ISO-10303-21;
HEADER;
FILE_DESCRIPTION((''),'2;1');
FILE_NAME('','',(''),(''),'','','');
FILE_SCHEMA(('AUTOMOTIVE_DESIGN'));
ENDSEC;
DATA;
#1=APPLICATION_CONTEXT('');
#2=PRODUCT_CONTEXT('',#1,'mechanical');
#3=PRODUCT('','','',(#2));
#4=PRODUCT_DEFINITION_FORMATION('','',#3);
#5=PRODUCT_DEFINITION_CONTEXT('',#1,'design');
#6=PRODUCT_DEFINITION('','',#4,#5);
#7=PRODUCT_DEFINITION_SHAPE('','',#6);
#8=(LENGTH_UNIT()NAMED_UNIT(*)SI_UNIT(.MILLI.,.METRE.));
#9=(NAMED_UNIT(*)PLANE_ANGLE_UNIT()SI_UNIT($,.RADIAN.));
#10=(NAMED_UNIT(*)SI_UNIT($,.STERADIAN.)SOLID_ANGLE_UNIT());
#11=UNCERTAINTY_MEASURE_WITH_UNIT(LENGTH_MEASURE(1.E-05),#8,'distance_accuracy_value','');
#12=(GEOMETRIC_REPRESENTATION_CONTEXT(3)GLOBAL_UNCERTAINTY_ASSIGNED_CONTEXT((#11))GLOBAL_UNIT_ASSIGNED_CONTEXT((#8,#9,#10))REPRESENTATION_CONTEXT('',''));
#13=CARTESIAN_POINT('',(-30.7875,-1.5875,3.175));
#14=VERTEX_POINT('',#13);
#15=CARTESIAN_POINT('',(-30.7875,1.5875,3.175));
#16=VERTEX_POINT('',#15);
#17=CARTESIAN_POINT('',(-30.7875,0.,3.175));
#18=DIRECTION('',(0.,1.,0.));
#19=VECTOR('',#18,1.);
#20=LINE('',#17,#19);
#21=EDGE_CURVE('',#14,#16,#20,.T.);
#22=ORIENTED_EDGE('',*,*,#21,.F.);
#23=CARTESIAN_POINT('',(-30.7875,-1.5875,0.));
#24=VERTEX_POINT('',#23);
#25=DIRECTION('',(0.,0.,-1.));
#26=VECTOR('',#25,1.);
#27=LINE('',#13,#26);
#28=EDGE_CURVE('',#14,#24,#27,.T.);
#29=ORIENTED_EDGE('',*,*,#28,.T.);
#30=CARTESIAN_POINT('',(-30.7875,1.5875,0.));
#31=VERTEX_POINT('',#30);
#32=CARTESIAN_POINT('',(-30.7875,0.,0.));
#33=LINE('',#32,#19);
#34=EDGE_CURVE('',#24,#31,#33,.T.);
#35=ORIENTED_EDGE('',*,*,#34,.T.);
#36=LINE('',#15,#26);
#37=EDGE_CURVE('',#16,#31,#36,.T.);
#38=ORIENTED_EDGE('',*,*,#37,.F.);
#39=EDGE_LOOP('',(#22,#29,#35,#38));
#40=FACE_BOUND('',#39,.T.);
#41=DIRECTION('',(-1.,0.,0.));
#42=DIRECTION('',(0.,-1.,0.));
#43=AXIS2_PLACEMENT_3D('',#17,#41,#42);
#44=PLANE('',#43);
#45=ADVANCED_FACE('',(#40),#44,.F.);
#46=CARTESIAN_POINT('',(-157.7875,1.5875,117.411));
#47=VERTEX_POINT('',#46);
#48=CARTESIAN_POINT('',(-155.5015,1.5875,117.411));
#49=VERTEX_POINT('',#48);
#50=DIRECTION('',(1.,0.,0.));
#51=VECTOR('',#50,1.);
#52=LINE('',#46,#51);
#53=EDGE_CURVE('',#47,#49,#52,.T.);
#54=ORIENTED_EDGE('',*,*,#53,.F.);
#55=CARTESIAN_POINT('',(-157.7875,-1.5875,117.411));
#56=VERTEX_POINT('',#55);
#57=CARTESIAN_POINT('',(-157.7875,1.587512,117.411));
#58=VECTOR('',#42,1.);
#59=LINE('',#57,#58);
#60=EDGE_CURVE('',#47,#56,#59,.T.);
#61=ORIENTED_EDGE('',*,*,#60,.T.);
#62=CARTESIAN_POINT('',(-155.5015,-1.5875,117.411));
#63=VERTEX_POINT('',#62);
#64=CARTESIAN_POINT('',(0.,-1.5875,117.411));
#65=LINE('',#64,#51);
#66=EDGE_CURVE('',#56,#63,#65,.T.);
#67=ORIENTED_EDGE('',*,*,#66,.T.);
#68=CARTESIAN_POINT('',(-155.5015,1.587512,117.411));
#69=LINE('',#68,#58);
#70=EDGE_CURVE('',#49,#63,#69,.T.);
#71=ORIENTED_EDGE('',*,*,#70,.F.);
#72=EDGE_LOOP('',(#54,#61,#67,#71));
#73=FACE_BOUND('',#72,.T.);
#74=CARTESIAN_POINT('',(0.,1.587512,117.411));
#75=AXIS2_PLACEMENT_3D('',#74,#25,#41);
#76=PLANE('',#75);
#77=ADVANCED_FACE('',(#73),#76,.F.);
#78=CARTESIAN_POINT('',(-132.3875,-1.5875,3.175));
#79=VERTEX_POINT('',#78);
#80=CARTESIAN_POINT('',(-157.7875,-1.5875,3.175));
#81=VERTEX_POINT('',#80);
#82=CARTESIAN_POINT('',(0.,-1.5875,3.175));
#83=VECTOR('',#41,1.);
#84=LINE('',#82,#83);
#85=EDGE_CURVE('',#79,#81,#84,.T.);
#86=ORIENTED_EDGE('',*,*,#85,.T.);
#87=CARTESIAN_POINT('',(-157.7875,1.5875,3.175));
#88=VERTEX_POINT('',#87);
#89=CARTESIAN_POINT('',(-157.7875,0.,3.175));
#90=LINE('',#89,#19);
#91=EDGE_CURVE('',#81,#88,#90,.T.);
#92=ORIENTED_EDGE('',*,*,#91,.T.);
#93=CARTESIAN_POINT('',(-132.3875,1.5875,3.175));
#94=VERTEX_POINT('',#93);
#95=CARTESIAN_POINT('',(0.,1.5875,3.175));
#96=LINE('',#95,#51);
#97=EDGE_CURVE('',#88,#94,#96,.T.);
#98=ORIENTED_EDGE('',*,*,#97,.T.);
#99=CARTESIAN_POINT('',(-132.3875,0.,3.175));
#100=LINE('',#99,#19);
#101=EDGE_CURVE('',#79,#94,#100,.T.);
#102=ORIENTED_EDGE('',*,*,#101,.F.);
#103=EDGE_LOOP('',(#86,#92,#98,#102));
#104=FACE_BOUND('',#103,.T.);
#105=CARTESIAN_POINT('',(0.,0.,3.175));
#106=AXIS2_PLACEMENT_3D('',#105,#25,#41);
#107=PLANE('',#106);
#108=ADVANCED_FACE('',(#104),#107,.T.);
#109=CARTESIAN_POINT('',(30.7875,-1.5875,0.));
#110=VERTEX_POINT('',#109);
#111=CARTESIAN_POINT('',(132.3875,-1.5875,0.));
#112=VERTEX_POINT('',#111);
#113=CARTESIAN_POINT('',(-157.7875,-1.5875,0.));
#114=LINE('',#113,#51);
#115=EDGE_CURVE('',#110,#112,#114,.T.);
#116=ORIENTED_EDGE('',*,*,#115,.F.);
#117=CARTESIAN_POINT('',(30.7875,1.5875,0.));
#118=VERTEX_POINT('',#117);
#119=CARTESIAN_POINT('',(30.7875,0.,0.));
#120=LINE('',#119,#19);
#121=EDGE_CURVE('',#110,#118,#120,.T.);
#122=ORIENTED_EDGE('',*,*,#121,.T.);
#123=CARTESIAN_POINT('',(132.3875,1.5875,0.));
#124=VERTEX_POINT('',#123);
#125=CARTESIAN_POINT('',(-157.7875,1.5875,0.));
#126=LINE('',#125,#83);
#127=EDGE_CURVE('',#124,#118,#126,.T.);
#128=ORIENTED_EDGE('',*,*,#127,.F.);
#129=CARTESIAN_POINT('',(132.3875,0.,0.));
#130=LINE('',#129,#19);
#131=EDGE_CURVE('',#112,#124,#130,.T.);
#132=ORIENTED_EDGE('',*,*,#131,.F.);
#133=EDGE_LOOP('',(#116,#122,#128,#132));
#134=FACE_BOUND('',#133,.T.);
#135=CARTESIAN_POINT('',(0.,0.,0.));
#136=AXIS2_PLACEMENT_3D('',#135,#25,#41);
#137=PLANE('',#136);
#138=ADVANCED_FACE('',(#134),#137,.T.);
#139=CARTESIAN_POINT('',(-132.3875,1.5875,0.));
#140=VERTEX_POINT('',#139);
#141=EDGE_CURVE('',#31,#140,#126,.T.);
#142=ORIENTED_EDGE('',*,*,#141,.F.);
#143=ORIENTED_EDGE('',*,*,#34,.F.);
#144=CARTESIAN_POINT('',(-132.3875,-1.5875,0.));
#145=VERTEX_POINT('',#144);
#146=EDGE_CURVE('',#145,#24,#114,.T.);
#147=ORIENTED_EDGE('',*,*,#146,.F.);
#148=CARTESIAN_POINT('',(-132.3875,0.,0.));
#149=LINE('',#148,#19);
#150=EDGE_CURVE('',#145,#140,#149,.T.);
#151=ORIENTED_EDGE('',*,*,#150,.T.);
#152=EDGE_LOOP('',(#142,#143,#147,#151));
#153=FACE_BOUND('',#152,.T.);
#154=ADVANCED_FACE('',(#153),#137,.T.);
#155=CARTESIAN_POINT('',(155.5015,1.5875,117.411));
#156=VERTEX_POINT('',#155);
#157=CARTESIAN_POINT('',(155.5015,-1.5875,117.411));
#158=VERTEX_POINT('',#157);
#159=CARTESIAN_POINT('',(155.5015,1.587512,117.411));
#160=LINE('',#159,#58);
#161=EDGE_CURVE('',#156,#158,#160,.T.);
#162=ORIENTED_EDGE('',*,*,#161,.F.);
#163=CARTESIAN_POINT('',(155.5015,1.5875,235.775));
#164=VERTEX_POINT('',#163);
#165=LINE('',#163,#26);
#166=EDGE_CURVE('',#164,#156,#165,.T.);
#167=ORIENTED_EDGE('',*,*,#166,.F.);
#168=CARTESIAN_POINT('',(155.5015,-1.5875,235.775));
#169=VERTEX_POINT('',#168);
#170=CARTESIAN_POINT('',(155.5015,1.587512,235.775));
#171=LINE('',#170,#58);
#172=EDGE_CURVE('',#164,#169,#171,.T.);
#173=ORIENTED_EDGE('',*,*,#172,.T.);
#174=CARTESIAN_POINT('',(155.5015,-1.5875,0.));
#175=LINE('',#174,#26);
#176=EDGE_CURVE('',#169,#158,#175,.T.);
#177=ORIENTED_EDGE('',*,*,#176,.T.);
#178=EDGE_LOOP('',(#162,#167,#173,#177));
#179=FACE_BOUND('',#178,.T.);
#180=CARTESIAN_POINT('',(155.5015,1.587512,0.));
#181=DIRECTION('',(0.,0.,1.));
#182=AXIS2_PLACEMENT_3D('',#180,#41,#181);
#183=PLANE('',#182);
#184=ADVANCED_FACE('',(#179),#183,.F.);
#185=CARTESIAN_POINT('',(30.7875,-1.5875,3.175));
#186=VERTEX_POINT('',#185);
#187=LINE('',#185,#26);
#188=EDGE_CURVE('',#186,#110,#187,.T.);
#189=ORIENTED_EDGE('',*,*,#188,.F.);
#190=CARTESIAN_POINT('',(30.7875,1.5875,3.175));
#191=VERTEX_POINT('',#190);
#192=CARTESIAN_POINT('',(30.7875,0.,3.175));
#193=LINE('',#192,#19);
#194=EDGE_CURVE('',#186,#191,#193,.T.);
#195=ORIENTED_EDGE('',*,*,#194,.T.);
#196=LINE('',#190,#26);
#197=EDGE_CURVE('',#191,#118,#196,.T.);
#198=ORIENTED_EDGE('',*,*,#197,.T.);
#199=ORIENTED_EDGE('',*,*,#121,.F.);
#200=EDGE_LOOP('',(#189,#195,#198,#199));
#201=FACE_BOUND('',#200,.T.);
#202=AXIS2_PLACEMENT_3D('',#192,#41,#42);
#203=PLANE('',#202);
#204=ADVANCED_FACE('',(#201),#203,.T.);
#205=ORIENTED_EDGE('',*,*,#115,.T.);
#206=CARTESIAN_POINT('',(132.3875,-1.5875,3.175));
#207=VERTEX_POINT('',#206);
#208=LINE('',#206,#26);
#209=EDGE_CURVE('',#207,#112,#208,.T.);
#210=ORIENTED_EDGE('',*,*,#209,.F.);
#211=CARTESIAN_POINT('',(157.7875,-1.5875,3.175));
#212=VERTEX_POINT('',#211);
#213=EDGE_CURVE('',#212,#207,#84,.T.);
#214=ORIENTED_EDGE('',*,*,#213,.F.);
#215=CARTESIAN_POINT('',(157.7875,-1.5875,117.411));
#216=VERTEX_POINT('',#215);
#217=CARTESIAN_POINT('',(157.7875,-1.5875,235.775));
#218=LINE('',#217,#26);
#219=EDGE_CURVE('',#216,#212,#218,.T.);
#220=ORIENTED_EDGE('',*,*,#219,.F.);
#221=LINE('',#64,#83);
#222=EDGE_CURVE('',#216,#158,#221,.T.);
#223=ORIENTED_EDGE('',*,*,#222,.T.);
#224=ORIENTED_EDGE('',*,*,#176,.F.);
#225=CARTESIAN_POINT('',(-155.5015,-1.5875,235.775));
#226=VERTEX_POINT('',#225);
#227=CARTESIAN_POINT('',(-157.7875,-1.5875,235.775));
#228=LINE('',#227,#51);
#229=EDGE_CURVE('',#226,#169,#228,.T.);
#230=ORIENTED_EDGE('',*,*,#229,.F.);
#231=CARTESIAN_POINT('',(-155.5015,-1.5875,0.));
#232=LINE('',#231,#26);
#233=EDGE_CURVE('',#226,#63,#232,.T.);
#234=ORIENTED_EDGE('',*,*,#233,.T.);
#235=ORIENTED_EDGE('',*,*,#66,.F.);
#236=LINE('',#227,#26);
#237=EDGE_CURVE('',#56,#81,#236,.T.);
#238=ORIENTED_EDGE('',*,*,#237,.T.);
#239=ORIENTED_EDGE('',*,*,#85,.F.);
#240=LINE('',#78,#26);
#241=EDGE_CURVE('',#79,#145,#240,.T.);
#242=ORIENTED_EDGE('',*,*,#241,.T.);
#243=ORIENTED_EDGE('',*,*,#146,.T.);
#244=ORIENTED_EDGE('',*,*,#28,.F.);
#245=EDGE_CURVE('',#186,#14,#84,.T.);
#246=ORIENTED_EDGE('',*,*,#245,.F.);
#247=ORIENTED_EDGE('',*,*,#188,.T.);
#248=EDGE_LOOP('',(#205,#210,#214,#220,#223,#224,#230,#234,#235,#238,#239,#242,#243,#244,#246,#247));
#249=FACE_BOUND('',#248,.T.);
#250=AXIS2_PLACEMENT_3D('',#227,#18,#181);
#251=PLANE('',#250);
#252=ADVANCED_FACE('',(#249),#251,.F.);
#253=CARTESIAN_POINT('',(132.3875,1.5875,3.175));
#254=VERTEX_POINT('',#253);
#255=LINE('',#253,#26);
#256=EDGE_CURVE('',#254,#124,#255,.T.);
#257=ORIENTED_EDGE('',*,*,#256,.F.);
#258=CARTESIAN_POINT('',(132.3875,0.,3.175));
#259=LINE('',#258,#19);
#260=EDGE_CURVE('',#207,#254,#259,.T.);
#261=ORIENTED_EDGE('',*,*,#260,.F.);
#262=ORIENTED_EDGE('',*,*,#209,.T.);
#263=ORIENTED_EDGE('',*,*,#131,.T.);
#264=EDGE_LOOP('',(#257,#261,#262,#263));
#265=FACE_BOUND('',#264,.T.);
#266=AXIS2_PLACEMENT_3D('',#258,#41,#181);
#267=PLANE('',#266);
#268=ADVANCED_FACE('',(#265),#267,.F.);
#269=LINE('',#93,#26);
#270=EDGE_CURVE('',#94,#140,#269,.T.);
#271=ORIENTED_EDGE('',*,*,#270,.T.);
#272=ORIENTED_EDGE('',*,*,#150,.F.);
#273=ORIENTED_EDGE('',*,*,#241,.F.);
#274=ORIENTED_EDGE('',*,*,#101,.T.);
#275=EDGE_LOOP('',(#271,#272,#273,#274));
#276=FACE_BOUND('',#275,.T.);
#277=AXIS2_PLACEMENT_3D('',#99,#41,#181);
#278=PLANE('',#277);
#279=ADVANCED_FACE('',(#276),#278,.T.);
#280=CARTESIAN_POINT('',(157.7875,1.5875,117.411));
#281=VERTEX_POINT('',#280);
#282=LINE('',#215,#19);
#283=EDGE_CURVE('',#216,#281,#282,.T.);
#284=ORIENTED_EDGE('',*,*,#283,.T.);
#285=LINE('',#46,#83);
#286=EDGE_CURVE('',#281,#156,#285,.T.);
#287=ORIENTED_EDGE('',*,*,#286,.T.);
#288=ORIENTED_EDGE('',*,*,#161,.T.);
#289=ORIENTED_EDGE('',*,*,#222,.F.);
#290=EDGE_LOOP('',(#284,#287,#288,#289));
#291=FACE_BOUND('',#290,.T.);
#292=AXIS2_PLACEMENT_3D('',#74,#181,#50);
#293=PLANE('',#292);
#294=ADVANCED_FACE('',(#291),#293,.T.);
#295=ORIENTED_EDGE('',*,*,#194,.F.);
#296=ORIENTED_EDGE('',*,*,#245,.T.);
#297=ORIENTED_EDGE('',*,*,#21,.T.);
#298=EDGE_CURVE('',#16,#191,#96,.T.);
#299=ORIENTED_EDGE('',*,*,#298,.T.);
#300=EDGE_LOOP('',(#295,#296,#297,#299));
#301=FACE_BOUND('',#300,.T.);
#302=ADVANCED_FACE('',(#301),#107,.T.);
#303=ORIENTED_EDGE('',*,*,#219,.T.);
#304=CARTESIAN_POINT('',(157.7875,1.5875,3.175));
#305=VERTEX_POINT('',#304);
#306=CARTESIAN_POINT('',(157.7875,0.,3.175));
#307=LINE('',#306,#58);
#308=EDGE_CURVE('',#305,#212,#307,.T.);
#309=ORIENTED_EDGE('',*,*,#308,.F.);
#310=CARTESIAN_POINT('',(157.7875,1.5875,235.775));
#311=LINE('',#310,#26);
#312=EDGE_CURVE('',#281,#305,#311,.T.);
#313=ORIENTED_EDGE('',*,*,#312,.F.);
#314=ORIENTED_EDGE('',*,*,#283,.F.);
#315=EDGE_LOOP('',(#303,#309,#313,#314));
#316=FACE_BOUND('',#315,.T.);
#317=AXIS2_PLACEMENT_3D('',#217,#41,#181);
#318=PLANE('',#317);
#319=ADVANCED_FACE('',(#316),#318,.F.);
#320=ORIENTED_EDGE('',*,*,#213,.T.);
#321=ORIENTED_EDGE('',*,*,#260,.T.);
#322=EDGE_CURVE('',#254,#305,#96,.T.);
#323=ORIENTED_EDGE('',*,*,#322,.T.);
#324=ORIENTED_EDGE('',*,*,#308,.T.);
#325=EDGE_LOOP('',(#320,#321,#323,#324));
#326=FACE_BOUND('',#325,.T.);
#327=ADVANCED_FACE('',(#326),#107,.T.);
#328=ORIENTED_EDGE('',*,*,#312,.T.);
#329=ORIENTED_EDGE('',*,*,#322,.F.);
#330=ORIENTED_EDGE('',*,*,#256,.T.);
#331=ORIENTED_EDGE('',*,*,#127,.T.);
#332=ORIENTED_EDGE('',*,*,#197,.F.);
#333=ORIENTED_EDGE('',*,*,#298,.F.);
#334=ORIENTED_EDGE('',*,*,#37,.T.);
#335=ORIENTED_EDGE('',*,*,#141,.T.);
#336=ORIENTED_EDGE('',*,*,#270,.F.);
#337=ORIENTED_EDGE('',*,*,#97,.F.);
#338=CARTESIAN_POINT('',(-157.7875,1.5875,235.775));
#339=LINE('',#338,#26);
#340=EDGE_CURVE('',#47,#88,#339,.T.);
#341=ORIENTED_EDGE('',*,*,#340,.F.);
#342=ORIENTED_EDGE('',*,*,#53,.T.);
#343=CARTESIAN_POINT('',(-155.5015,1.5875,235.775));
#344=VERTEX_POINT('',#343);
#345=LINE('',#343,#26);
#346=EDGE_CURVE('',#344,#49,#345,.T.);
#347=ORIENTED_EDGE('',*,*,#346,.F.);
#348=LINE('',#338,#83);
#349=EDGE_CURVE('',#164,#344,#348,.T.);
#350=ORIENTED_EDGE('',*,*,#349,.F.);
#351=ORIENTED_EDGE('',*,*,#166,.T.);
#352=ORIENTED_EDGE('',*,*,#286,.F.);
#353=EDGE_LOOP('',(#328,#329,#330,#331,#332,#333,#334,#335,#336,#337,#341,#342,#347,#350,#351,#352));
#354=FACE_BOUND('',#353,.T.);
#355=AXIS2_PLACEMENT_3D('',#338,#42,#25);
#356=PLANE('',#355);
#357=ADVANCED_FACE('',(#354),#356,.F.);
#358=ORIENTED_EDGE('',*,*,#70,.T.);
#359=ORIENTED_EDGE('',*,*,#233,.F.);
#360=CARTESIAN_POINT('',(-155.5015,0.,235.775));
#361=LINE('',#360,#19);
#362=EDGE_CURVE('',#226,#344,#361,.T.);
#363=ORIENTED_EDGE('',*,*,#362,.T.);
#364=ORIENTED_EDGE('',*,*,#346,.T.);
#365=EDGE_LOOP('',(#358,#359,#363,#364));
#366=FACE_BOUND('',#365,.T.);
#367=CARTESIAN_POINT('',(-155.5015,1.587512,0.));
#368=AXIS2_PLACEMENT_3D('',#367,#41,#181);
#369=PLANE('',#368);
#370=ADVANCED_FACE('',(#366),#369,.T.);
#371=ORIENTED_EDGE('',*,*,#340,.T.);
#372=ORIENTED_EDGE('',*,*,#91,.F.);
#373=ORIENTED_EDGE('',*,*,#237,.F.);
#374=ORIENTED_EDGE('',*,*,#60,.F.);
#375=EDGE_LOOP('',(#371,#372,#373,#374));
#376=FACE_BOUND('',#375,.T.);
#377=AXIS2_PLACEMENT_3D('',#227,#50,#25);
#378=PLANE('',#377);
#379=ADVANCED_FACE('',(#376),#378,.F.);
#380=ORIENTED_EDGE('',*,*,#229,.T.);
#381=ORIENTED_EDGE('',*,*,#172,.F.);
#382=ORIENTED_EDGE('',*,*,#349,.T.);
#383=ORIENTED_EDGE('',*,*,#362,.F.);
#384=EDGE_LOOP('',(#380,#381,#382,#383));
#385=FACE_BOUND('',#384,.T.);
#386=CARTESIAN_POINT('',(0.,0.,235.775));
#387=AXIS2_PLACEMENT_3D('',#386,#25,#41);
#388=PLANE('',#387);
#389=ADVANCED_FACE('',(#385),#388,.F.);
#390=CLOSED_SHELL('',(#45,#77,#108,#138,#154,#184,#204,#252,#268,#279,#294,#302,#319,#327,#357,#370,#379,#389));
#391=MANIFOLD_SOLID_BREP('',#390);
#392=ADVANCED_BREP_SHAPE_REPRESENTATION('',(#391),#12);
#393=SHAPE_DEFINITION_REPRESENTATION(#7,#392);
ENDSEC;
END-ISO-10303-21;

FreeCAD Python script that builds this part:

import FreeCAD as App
import Part
import Sketcher

V = App.Vector
Q = App.Units.Quantity

doc = App.newDocument("Part")
body = doc.addObject("PartDesign::Body", "Body")

# Sketch on XY plane
sketch1 = body.newObject("Sketcher::SketchObject", "Sketch")
sketch1.AttachmentSupport = (doc.getObject("XY_Plane"), [""])
sketch1.MapMode = "FlatFace"
sketch1.addGeometry([
    Part.LineSegment(V(-157.8, 1.6, 0), V(-157.8, -1.6, 0)),
    Part.LineSegment(V(-157.8, -1.6, 0), V(157.8, -1.6, 0)),
    Part.LineSegment(V(157.8, -1.6, 0), V(157.8, 1.6, 0)),
    Part.LineSegment(V(157.8, 1.6, 0), V(-157.8, 1.6, 0)),
], False)
sketch1.addConstraint([
    Sketcher.Constraint("Coincident", 0, 2, 1, 1),
    Sketcher.Constraint("Coincident", 1, 2, 2, 1),
    Sketcher.Constraint("Coincident", 2, 2, 3, 1),
    Sketcher.Constraint("Coincident", 3, 2, 0, 1),
    Sketcher.Constraint("Vertical", 0),
    Sketcher.Constraint("Horizontal", 1),
    Sketcher.Constraint("Vertical", 2),
    Sketcher.Constraint("Horizontal", 3),
    Sketcher.Constraint("Symmetric", 0, 2, 2, 2, -1, 1),
    Sketcher.Constraint("DistanceY", 0, 2, 0, 1, Q("0.125 in")),
    Sketcher.Constraint("DistanceX", 1, 1, 1, 2, Q("315.575 mm")),
])
pad1 = body.newObject("PartDesign::Pad", "Pad")
pad1.Profile = sketch1
pad1.Length = 235.775

# Sketch on XY plane
sketch2 = body.newObject("Sketcher::SketchObject", "Sketch001")
sketch2.AttachmentSupport = (doc.getObject("XY_Plane"), [""])
sketch2.MapMode = "FlatFace"
sketch2.addGeometry([
    Part.LineSegment(V(157.8, 1.6, 0), V(157.8, -1.6, 0)),  # 0
    Part.LineSegment(V(157.8, -1.6, 0), V(132.4, -1.6, 0)),  # 1
    Part.LineSegment(V(132.4, -1.6, 0), V(132.4, 1.6, 0)),  # 2
    Part.LineSegment(V(132.4, 1.6, 0), V(157.8, 1.6, 0)),  # 3
    Part.LineSegment(V(30.8, 1.6, 0), V(30.8, -1.6, 0)),  # 4
    Part.LineSegment(V(30.8, -1.6, 0), V(-30.8, -1.6, 0)),  # 5
    Part.LineSegment(V(-30.8, -1.6, 0), V(-30.8, 1.6, 0)),  # 6
    Part.LineSegment(V(-30.8, 1.6, 0), V(30.8, 1.6, 0)),  # 7
    Part.LineSegment(V(-132.4, 1.6, 0), V(-132.4, -1.6, 0)),  # 8
    Part.LineSegment(V(-132.4, -1.6, 0), V(-157.8, -1.6, 0)),  # 9
    Part.LineSegment(V(-157.8, -1.6, 0), V(-157.8, 1.6, 0)),  # 10
    Part.LineSegment(V(-157.8, 1.6, 0), V(-132.4, 1.6, 0)),  # 11
], False)
sketch2.addConstraint([
    Sketcher.Constraint("Coincident", 0, 2, 1, 1),
    Sketcher.Constraint("Coincident", 1, 2, 2, 1),
    Sketcher.Constraint("Coincident", 2, 2, 3, 1),
    Sketcher.Constraint("Coincident", 3, 2, 0, 1),
    Sketcher.Constraint("Coincident", 4, 2, 5, 1),
    Sketcher.Constraint("Coincident", 5, 2, 6, 1),
    Sketcher.Constraint("Coincident", 6, 2, 7, 1),
    Sketcher.Constraint("Coincident", 7, 2, 4, 1),
    Sketcher.Constraint("Coincident", 8, 2, 9, 1),
    Sketcher.Constraint("Coincident", 9, 2, 10, 1),
    Sketcher.Constraint("Coincident", 10, 2, 11, 1),
    Sketcher.Constraint("Coincident", 11, 2, 8, 1),
    Sketcher.Constraint("Vertical", 0),
    Sketcher.Constraint("Horizontal", 1),
    Sketcher.Constraint("Vertical", 2),
    Sketcher.Constraint("Horizontal", 3),
    Sketcher.Constraint("Vertical", 4),
    Sketcher.Constraint("Horizontal", 5),
    Sketcher.Constraint("Vertical", 6),
    Sketcher.Constraint("Horizontal", 7),
    Sketcher.Constraint("Vertical", 8),
    Sketcher.Constraint("Horizontal", 9),
    Sketcher.Constraint("Vertical", 10),
    Sketcher.Constraint("Horizontal", 11),
    Sketcher.Constraint("Symmetric", 4, 2, 6, 2, -1, 1),
    Sketcher.Constraint("Symmetric", 2, 2, 8, 2, -1, 1),
    Sketcher.Constraint("Symmetric", 0, 2, 10, 2, -1, 1),
    Sketcher.Constraint("Horizontal", 1, 2, 4, 2),
    Sketcher.Constraint("Horizontal", 3, 2, 6, 2),
    Sketcher.Constraint("DistanceX", 1, 2, 1, 1, Q("1 in")),
    Sketcher.Constraint("DistanceX", 4, 2, 1, 2, Q("4 in")),
    Sketcher.Constraint("DistanceY", 0, 2, 0, 1, Q("0.125 in")),
    Sketcher.Constraint("DistanceX", 5, 2, 5, 1, Q("61.575 mm")),
])
pocket1 = body.newObject("PartDesign::Pocket", "Pocket")
pocket1.Profile = sketch2
pocket1.Length = Q("0.125 in")
pocket1.Reversed = True

# Sketch on XZ plane
sketch3 = body.newObject("Sketcher::SketchObject", "Sketch002")
sketch3.AttachmentSupport = (doc.getObject("XZ_Plane"), [""])
sketch3.MapMode = "FlatFace"
sketch3.AttachmentOffset = App.Placement(V(0, 0, 0.0625 * 25.4), App.Rotation())
sketch3.addGeometry([
    Part.LineSegment(V(-157.8, 117.4, 0), V(-157.8, 235.8, 0)),
    Part.LineSegment(V(-157.8, 235.8, 0), V(-155.5, 235.8, 0)),
    Part.LineSegment(V(-155.5, 235.8, 0), V(-155.5, 117.4, 0)),
    Part.LineSegment(V(-155.5, 117.4, 0), V(-157.8, 117.4, 0)),
], False)
sketch3.addConstraint([
    Sketcher.Constraint("Coincident", 0, 2, 1, 1),
    Sketcher.Constraint("Coincident", 1, 2, 2, 1),
    Sketcher.Constraint("Coincident", 2, 2, 3, 1),
    Sketcher.Constraint("Coincident", 3, 2, 0, 1),
    Sketcher.Constraint("Vertical", 0),
    Sketcher.Constraint("Horizontal", 1),
    Sketcher.Constraint("Vertical", 2),
    Sketcher.Constraint("Horizontal", 3),
    Sketcher.Constraint("DistanceX", 1, 1, 1, 2, Q("0.09 in")),
    Sketcher.Constraint("DistanceY", 0, 1, 0, 2, Q("4.66 in")),
    Sketcher.Constraint("DistanceX", 0, 2, -1, 1, Q("157.7875 mm")),
    Sketcher.Constraint("DistanceY", -1, 1, 0, 2, Q("235.775 mm")),
])
pocket2 = body.newObject("PartDesign::Pocket", "Pocket001")
pocket2.Profile = sketch3
pocket2.Length = 287.894626
doc.recompute()

mirrored = body.newObject("PartDesign::Mirrored", "Mirrored")
mirrored.Originals = [pocket2]
mirrored.MirrorPlane = (doc.getObject("YZ_Plane"), [""])
body.Tip = mirrored

doc.recompute()
